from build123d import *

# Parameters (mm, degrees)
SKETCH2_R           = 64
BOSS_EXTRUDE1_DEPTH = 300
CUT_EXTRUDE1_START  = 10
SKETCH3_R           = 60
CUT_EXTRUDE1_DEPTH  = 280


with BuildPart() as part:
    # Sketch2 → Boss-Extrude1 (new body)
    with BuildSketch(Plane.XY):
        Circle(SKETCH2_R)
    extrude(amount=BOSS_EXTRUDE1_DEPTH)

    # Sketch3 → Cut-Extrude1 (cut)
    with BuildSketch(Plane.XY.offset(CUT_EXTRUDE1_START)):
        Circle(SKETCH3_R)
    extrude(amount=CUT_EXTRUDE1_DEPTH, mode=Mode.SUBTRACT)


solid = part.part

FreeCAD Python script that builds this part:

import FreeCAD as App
import Part
import Sketcher

V = App.Vector

doc = App.newDocument("Part")
params = doc.addObject("Spreadsheet::Sheet", "Params")
for row, (alias, value) in enumerate([
    ("sketch1_diameter", "128 mm"),
    ("pad1_length", "300 mm"),
    ("sketch2_diameter", "120 mm"),
    ("pocket1_length", "280 mm"),
], start=1):
    params.set(f"A{row}", alias)
    params.set(f"B{row}", "=" + value)
    params.setAlias(f"B{row}", alias)

body = doc.addObject("PartDesign::Body", "Body")

# Sketch on XY plane
sketch1 = body.newObject("Sketcher::SketchObject", "Sketch")
sketch1.AttachmentSupport = (doc.getObject("XY_Plane"), [""])
sketch1.MapMode = "FlatFace"
sketch1.addGeometry(Part.Circle(V(0, 0, 0), V(0, 0, 1), 64), False)
sketch1.addConstraint([
    Sketcher.Constraint("Coincident", 0, 3, -1, 1),
    Sketcher.Constraint("Diameter", 0, 128.0),
])
sketch1.setExpression("Constraints[1]", "Params.sketch1_diameter")
pad1 = body.newObject("PartDesign::Pad", "Pad")
pad1.Profile = sketch1
pad1.setExpression("Length", "Params.pad1_length")

# Sketch on XY plane
sketch2 = body.newObject("Sketcher::SketchObject", "Sketch001")
sketch2.AttachmentSupport = (doc.getObject("XY_Plane"), [""])
sketch2.MapMode = "FlatFace"
sketch2.AttachmentOffset = App.Placement(V(0, 0, 10), App.Rotation())
sketch2.addGeometry(Part.Circle(V(0, 0, 0), V(0, 0, 1), 60), False)
sketch2.addConstraint([
    Sketcher.Constraint("Coincident", 0, 3, -1, 1),
    Sketcher.Constraint("Diameter", 0, 120.0),
])
sketch2.setExpression("Constraints[1]", "Params.sketch2_diameter")
pocket1 = body.newObject("PartDesign::Pocket", "Pocket")
pocket1.Profile = sketch2
pocket1.setExpression("Length", "Params.pocket1_length")
pocket1.Reversed = True

doc.recompute()
